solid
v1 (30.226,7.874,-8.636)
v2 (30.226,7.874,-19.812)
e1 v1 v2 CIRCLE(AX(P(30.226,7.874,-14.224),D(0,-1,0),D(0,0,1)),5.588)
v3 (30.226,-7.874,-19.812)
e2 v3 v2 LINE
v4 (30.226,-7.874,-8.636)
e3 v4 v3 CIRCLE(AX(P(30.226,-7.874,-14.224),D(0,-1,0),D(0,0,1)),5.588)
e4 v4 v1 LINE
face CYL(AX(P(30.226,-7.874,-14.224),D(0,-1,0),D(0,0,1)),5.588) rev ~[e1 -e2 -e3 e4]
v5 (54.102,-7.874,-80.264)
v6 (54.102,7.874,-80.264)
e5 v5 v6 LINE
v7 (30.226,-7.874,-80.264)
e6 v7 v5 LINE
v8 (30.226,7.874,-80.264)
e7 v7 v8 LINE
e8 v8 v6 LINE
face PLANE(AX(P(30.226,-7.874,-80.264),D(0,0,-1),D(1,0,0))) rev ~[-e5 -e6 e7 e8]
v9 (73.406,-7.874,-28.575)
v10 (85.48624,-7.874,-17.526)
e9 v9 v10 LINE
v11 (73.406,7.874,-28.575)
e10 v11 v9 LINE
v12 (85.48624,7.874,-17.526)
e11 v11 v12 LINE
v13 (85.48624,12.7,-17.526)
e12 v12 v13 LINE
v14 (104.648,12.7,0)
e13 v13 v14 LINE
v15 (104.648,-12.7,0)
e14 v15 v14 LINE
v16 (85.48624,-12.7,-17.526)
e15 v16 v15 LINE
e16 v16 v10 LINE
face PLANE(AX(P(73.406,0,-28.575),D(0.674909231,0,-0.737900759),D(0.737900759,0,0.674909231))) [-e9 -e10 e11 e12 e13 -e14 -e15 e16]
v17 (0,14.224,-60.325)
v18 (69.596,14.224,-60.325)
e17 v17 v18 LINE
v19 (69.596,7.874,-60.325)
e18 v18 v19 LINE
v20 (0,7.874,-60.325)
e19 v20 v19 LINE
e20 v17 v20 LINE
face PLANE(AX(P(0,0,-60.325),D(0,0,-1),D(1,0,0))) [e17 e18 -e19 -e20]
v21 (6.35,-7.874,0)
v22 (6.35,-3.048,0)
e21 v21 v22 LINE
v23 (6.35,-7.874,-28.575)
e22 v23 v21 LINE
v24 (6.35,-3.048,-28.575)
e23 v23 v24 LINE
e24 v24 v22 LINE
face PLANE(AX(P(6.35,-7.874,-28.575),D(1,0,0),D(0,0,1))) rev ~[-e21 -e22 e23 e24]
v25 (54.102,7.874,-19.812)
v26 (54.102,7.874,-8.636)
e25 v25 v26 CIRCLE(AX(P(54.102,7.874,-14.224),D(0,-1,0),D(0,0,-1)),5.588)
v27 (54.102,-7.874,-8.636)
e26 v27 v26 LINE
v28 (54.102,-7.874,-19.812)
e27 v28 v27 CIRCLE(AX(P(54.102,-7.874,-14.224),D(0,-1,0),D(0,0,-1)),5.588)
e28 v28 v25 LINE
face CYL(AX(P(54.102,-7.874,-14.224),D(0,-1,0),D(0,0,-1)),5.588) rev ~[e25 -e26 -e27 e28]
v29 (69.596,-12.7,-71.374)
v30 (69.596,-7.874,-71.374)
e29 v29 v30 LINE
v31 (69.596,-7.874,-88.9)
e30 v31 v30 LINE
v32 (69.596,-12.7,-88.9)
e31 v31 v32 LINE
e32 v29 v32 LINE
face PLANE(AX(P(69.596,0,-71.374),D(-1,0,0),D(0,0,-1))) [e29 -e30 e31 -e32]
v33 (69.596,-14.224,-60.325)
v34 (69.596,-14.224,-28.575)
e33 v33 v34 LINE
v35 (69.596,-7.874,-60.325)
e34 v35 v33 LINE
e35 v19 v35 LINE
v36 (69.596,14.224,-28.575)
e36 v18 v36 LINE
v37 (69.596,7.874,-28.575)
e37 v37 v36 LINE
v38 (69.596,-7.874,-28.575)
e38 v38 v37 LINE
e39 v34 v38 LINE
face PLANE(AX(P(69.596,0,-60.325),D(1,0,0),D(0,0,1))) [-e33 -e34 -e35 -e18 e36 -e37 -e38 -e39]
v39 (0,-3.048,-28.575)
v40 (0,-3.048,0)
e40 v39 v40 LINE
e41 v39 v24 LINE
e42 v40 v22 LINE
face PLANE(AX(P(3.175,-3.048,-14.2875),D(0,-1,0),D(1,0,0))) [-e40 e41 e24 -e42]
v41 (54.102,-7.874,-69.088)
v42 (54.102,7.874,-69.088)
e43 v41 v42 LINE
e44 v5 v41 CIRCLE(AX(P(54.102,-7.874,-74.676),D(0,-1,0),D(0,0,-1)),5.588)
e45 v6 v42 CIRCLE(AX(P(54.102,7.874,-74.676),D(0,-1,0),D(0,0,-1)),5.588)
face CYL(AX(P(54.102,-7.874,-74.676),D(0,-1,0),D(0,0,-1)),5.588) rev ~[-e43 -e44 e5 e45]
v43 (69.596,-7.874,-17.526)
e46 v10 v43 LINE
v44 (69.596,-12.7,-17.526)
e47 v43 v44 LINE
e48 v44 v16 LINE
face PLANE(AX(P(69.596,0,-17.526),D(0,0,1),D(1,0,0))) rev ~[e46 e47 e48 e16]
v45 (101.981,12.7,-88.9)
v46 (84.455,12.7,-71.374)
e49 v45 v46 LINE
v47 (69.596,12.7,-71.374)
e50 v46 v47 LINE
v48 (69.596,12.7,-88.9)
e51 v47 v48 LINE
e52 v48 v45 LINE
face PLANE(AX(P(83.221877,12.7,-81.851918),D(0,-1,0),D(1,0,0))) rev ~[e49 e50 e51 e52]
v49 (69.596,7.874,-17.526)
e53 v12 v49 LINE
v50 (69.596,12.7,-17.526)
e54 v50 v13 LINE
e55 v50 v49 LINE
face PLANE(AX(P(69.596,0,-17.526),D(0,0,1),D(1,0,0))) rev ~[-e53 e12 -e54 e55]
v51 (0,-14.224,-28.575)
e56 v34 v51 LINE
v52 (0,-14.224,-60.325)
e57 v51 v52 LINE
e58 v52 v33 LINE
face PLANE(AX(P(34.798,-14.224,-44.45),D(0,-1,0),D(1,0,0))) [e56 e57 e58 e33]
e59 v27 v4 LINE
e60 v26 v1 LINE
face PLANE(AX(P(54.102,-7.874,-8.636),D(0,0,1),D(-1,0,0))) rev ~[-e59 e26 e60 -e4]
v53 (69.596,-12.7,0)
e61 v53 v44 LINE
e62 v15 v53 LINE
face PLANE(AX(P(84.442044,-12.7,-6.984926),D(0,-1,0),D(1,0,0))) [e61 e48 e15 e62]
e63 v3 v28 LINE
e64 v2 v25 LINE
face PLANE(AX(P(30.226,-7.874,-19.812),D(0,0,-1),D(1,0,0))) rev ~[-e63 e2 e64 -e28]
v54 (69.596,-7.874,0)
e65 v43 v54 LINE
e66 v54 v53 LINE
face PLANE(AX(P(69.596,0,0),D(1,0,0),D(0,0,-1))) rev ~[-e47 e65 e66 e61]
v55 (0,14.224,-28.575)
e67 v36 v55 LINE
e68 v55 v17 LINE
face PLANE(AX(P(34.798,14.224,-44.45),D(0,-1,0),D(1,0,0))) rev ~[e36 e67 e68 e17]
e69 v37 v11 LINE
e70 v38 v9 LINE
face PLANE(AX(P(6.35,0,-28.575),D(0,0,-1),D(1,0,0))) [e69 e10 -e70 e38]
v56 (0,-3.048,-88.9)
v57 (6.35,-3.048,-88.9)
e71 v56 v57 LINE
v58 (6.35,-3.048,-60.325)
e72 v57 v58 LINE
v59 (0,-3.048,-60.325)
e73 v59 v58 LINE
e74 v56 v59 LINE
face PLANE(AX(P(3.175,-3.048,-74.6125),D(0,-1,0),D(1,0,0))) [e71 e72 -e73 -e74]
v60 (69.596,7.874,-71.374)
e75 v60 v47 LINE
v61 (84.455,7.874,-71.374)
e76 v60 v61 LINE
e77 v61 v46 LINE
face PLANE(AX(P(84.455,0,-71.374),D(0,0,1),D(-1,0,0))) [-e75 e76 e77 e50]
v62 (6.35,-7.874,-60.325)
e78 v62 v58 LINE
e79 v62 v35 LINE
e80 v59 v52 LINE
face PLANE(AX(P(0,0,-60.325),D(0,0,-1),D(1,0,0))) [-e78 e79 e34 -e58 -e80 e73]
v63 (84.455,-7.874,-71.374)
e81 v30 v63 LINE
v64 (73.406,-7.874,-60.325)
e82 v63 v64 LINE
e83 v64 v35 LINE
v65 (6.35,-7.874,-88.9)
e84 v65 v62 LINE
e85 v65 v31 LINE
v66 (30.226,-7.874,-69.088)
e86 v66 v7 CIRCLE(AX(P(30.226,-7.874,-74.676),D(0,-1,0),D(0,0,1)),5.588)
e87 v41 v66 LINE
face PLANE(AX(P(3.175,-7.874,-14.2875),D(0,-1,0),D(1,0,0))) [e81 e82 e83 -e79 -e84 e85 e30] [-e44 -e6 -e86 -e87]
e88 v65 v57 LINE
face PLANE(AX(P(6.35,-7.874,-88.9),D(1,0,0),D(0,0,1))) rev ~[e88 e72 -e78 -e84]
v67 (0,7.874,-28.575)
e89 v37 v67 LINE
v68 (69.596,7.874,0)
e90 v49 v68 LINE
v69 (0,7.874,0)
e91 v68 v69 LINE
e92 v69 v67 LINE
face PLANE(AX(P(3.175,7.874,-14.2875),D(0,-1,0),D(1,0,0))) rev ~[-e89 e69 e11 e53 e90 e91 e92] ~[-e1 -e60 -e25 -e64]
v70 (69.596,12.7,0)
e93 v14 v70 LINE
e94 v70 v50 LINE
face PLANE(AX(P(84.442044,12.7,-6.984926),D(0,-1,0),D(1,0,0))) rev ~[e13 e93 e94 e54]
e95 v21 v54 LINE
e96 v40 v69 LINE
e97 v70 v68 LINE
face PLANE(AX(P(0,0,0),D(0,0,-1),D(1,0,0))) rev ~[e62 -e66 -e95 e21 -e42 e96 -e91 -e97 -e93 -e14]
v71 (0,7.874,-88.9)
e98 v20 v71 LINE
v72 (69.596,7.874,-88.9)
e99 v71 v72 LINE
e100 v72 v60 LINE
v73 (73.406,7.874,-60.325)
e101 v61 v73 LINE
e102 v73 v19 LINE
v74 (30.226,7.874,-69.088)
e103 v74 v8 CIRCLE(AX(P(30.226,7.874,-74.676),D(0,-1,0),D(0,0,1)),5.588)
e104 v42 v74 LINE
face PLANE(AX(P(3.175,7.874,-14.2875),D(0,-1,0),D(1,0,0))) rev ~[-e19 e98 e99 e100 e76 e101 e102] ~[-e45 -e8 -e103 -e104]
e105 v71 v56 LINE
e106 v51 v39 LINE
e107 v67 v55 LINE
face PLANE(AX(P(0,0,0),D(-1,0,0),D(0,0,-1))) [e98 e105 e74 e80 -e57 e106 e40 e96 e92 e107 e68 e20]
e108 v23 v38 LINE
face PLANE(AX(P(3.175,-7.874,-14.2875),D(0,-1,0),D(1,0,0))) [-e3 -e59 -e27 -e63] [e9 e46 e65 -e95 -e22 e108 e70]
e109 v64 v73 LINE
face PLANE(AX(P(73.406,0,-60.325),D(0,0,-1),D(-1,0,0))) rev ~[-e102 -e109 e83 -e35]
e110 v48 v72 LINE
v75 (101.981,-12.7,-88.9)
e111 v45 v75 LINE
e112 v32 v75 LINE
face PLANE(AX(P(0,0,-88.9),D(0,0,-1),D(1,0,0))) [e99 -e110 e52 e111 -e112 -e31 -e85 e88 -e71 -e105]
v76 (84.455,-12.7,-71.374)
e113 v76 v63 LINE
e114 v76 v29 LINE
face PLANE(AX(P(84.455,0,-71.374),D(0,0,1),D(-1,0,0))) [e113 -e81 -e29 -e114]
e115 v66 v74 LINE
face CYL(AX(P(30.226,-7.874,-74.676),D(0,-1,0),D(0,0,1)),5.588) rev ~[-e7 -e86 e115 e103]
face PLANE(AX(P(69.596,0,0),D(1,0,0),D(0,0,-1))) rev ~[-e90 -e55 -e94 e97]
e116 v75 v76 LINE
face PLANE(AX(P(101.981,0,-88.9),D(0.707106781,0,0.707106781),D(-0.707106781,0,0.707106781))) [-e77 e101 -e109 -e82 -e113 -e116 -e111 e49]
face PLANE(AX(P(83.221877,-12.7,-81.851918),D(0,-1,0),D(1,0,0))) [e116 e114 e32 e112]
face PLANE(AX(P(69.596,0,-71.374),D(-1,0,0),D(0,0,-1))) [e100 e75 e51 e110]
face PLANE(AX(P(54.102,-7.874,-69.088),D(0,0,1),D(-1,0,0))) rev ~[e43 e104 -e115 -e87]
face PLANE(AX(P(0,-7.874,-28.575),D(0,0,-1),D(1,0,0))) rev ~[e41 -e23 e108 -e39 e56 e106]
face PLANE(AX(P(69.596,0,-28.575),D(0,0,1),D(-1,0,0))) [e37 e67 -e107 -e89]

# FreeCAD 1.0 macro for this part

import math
import FreeCAD as App
import Part
import Sketcher

V = App.Vector
Q = App.Units.Quantity

doc = App.newDocument("Part")
params = doc.addObject("Spreadsheet::Sheet", "Params")
for row, (alias, value) in enumerate([
    ("sketch1_width", "2.74 in"),
    ("sketch1_height", "1.25 in"),
    ("pad1_length", "1.12 in"),
    ("sketch2_width", "2.49 in"),
    ("sketch2_width2", "2.64 in"),
    ("sketch2_height", "0.69 in"),
    ("sketch2_width3", "0.585 in"),
    ("pad2_length", "0.62 in"),
    ("sketch3_width", "1.38 in"),
    ("sketch3_height", "0.69 in"),
    ("sketch3_width2", "1.275 in"),
    ("pad3_length", "1 in"),
    ("sketch4_height", "3.5 in"),
    ("sketch4_width", "0.25 in"),
    ("sketch4_width2", "2.49 in"),
    ("sketch4_height2", "1.25 in"),
    ("pad4_length", "0.62 in"),
    ("sketch5_width", "0.25 in"),
    ("sketch5_height", "1.125 in"),
    ("pocket1_length", "0.19 in"),
    ("sketch6_radius", "0.22 in"),
    ("sketch6_width", "0.94 in"),
], start=1):
    params.set(f"A{row}", alias)
    params.set(f"B{row}", "=" + value)
    params.setAlias(f"B{row}", alias)

body = doc.addObject("PartDesign::Body", "Body")

sketch1 = body.newObject("Sketcher::SketchObject", "Sketch")
sketch1.AttachmentSupport = (doc.getObject("XZ_Plane"), [""])
sketch1.MapMode = "FlatFace"
sketch1.addGeometry([
    Part.LineSegment(V(0, -29, 0), V(0, -60, 0)),
    Part.LineSegment(V(0, -60, 0), V(70, -60, 0)),
    Part.LineSegment(V(70, -60, 0), V(70, -29, 0)),
    Part.LineSegment(V(70, -29, 0), V(0, -29, 0)),
], False)
sketch1.addConstraint([
    Sketcher.Constraint("Coincident", 0, 2, 1, 1),
    Sketcher.Constraint("Coincident", 1, 2, 2, 1),
    Sketcher.Constraint("Coincident", 2, 2, 3, 1),
    Sketcher.Constraint("Coincident", 3, 2, 0, 1),
    Sketcher.Constraint("Vertical", 0),
    Sketcher.Constraint("Horizontal", 1),
    Sketcher.Constraint("Vertical", 2),
    Sketcher.Constraint("Horizontal", 3),
    Sketcher.Constraint("PointOnObject", 0, 2, -2),
    Sketcher.Constraint("DistanceX", 1, 1, 1, 2, Q("2.74 in")),
    Sketcher.Constraint("DistanceY", 0, 2, 0, 1, Q("1.25 in")),
    Sketcher.Constraint("DistanceY", 0, 2, -1, 1, Q("2.375 in")),
])
sketch1.setExpression("Constraints[9]", "Params.sketch1_width")
sketch1.setExpression("Constraints[10]", "Params.sketch1_height")
pad1 = body.newObject("PartDesign::Pad", "Pad")
pad1.Profile = sketch1
pad1.setExpression("Length", "Params.pad1_length")
pad1.Midplane = True

sketch2 = body.newObject("Sketcher::SketchObject", "Sketch001")
sketch2.AttachmentSupport = (doc.getObject("XZ_Plane"), [""])
sketch2.MapMode = "FlatFace"
sketch2.addGeometry([
    Part.LineSegment(V(6, -60, 0), V(6, -89, 0)),
    Part.LineSegment(V(6, -89, 0), V(70, -89, 0)),
    Part.LineSegment(V(70, -89, 0), V(70, -71, 0)),
    Part.LineSegment(V(70, -71, 0), V(84, -71, 0)),
    Part.LineSegment(V(84, -71, 0), V(73, -60, 0)),
    Part.LineSegment(V(73, -60, 0), V(6, -60, 0)),
    Part.LineSegment(V(70, 0, 0), V(6, 0, 0)),
    Part.LineSegment(V(6, 0, 0), V(6, -29, 0)),
    Part.LineSegment(V(6, -29, 0), V(73, -29, 0)),
    Part.LineSegment(V(73, -29, 0), V(85, -18, 0)),
    Part.LineSegment(V(85, -18, 0), V(70, -18, 0)),
    Part.LineSegment(V(70, -18, 0), V(70, 0, 0)),
], False)
sketch2.addConstraint([
    Sketcher.Constraint("Coincident", 0, 2, 1, 1),
    Sketcher.Constraint("Coincident", 1, 2, 2, 1),
    Sketcher.Constraint("Coincident", 2, 2, 3, 1),
    Sketcher.Constraint("Coincident", 3, 2, 4, 1),
    Sketcher.Constraint("Coincident", 4, 2, 5, 1),
    Sketcher.Constraint("Coincident", 5, 2, 0, 1),
    Sketcher.Constraint("Coincident", 6, 2, 7, 1),
    Sketcher.Constraint("Coincident", 7, 2, 8, 1),
    Sketcher.Constraint("Coincident", 8, 2, 9, 1),
    Sketcher.Constraint("Coincident", 9, 2, 10, 1),
    Sketcher.Constraint("Coincident", 10, 2, 11, 1),
    Sketcher.Constraint("Coincident", 11, 2, 6, 1),
    Sketcher.Constraint("Vertical", 0),
    Sketcher.Constraint("Horizontal", 1),
    Sketcher.Constraint("Vertical", 2),
    Sketcher.Constraint("Horizontal", 3),
    Sketcher.Constraint("Horizontal", 5),
    Sketcher.Constraint("Horizontal", 6),
    Sketcher.Constraint("Vertical", 7),
    Sketcher.Constraint("Horizontal", 8),
    Sketcher.Constraint("Horizontal", 10),
    Sketcher.Constraint("Vertical", 11),
    Sketcher.Constraint("PointOnObject", 6, 2, -1),
    Sketcher.Constraint("Vertical", 5, 2, 6, 2),
    Sketcher.Constraint("Vertical", 4, 2, 8, 2),
    Sketcher.Constraint("Vertical", 2, 2, 10, 2),
    Sketcher.Constraint("Equal", 0, 7),
    Sketcher.Constraint("Equal", 2, 11),
    Sketcher.Constraint("Angle", 4, Q("135 deg")),
    Sketcher.Constraint("DistanceX", 1, 1, 1, 2, Q("2.49 in")),
    Sketcher.Constraint("DistanceX", 5, 2, 5, 1, Q("2.64 in")),
    Sketcher.Constraint("DistanceY", 2, 1, 2, 2, Q("0.69 in")),
    Sketcher.Constraint("DistanceY", 0, 2, -1, 1, Q("3.5 in")),
    Sketcher.Constraint("DistanceX", 3, 1, 3, 2, Q("0.585 in")),
    Sketcher.Constraint("DistanceX", -1, 1, 0, 2, Q("0.25 in")),
    Sketcher.Constraint("DistanceX", 10, 2, 10, 1, Q("0.6256 in")),
])
sketch2.setExpression("Constraints[29]", "Params.sketch2_width")
sketch2.setExpression("Constraints[30]", "Params.sketch2_width2")
sketch2.setExpression("Constraints[31]", "Params.sketch2_height")
sketch2.setExpression("Constraints[33]", "Params.sketch2_width3")
pad2 = body.newObject("PartDesign::Pad", "Pad001")
pad2.Profile = sketch2
pad2.setExpression("Length", "Params.pad2_length")
pad2.Midplane = True

sketch3 = body.newObject("Sketcher::SketchObject", "Sketch002")
sketch3.AttachmentSupport = (doc.getObject("XZ_Plane"), [""])
sketch3.MapMode = "FlatFace"
sketch3.addGeometry([
    Part.LineSegment(V(105, 0, 0), V(70, 0, 0)),
    Part.LineSegment(V(70, 0, 0), V(70, -18, 0)),
    Part.LineSegment(V(70, -18, 0), V(85, -18, 0)),
    Part.LineSegment(V(85, -18, 0), V(105, 0, 0)),
    Part.LineSegment(V(70, -71, 0), V(70, -89, 0)),
    Part.LineSegment(V(70, -89, 0), V(102, -89, 0)),
    Part.LineSegment(V(102, -89, 0), V(84, -71, 0)),
    Part.LineSegment(V(84, -71, 0), V(70, -71, 0)),
], False)
sketch3.addConstraint([
    Sketcher.Constraint("Coincident", 0, 2, 1, 1),
    Sketcher.Constraint("Coincident", 1, 2, 2, 1),
    Sketcher.Constraint("Coincident", 2, 2, 3, 1),
    Sketcher.Constraint("Coincident", 3, 2, 0, 1),
    Sketcher.Constraint("Coincident", 4, 2, 5, 1),
    Sketcher.Constraint("Coincident", 5, 2, 6, 1),
    Sketcher.Constraint("Coincident", 6, 2, 7, 1),
    Sketcher.Constraint("Coincident", 7, 2, 4, 1),
    Sketcher.Constraint("Horizontal", 0),
    Sketcher.Constraint("Vertical", 1),
    Sketcher.Constraint("Horizontal", 2),
    Sketcher.Constraint("Vertical", 4),
    Sketcher.Constraint("Horizontal", 5),
    Sketcher.Constraint("Horizontal", 7),
    Sketcher.Constraint("PointOnObject", 0, 2, -1),
    Sketcher.Constraint("Vertical", 1, 2, 4, 2),
    Sketcher.Constraint("Equal", 1, 4),
    Sketcher.Constraint("Angle", 6, Q("135 deg")),
    Sketcher.Constraint("DistanceX", 0, 2, 0, 1, Q("1.38 in")),
    Sketcher.Constraint("DistanceY", 1, 2, 1, 1, Q("0.69 in")),
    Sketcher.Constraint("DistanceY", 4, 2, -1, 1, Q("3.5 in")),
    Sketcher.Constraint("DistanceX", 5, 1, 5, 2, Q("1.275 in")),
    Sketcher.Constraint("DistanceX", -1, 1, 0, 2, Q("2.74 in")),
    Sketcher.Constraint("DistanceX", 2, 1, 2, 2, Q("0.6256 in")),
])
sketch3.setExpression("Constraints[18]", "Params.sketch3_width")
sketch3.setExpression("Constraints[19]", "Params.sketch3_height")
sketch3.setExpression("Constraints[21]", "Params.sketch3_width2")
pad3 = body.newObject("PartDesign::Pad", "Pad002")
pad3.Profile = sketch3
pad3.setExpression("Length", "Params.pad3_length")
pad3.Midplane = True

sketch4 = body.newObject("Sketcher::SketchObject", "Sketch003")
sketch4.AttachmentSupport = (doc.getObject("XZ_Plane"), [""])
sketch4.MapMode = "FlatFace"
sketch4.addGeometry([
    Part.LineSegment(V(0, 0, 0), V(0, -89, 0)),
    Part.LineSegment(V(0, -89, 0), V(6, -89, 0)),
    Part.LineSegment(V(6, -89, 0), V(6, -60, 0)),
    Part.LineSegment(V(6, -60, 0), V(70, -60, 0)),
    Part.LineSegment(V(70, -60, 0), V(70, -29, 0)),
    Part.LineSegment(V(70, -29, 0), V(6, -29, 0)),
    Part.LineSegment(V(6, -29, 0), V(6, 0, 0)),
    Part.LineSegment(V(6, 0, 0), V(0, 0, 0)),
], False)
sketch4.addConstraint([
    Sketcher.Constraint("Coincident", 0, 2, 1, 1),
    Sketcher.Constraint("Coincident", 1, 2, 2, 1),
    Sketcher.Constraint("Coincident", 2, 2, 3, 1),
    Sketcher.Constraint("Coincident", 3, 2, 4, 1),
    Sketcher.Constraint("Coincident", 4, 2, 5, 1),
    Sketcher.Constraint("Coincident", 5, 2, 6, 1),
    Sketcher.Constraint("Coincident", 6, 2, 7, 1),
    Sketcher.Constraint("Coincident", 7, 2, 0, 1),
    Sketcher.Constraint("Vertical", 0),
    Sketcher.Constraint("Horizontal", 1),
    Sketcher.Constraint("Vertical", 2),
    Sketcher.Constraint("Horizontal", 3),
    Sketcher.Constraint("Vertical", 4),
    Sketcher.Constraint("Horizontal", 5),
    Sketcher.Constraint("Vertical", 6),
    Sketcher.Constraint("Horizontal", 7),
    Sketcher.Constraint("Coincident", 7, 2, -1, 1),
    Sketcher.Constraint("Vertical", 2, 2, 5, 2),
    Sketcher.Constraint("Equal", 2, 6),
    Sketcher.Constraint("DistanceY", 0, 2, 0, 1, Q("3.5 in")),
    Sketcher.Constraint("DistanceX", 1, 1, 1, 2, Q("0.25 in")),
    Sketcher.Constraint("DistanceX", 3, 1, 3, 2, Q("2.49 in")),
    Sketcher.Constraint("DistanceY", 4, 1, 4, 2, Q("1.25 in")),
])
sketch4.setExpression("Constraints[19]", "Params.sketch4_height")
sketch4.setExpression("Constraints[20]", "Params.sketch4_width")
sketch4.setExpression("Constraints[21]", "Params.sketch4_width2")
sketch4.setExpression("Constraints[22]", "Params.sketch4_height2")
pad4 = body.newObject("PartDesign::Pad", "Pad003")
pad4.Profile = sketch4
pad4.setExpression("Length", "Params.pad4_length")
pad4.Midplane = True

sketch5 = body.newObject("Sketcher::SketchObject", "Sketch004")
sketch5.AttachmentSupport = (doc.getObject("XZ_Plane"), [""])
sketch5.MapMode = "FlatFace"
sketch5.AttachmentOffset = App.Placement(V(0, 0, 0.31 * 25.4), App.Rotation())
sketch5.addGeometry([
    Part.LineSegment(V(0, 0, 0), V(0, -29, 0)),
    Part.LineSegment(V(0, -29, 0), V(6, -29, 0)),
    Part.LineSegment(V(6, -29, 0), V(6, 0, 0)),
    Part.LineSegment(V(6, 0, 0), V(0, 0, 0)),
    Part.LineSegment(V(0, -60, 0), V(0, -89, 0)),
    Part.LineSegment(V(0, -89, 0), V(6, -89, 0)),
    Part.LineSegment(V(6, -89, 0), V(6, -60, 0)),
    Part.LineSegment(V(6, -60, 0), V(0, -60, 0)),
], False)
sketch5.addConstraint([
    Sketcher.Constraint("Coincident", 0, 2, 1, 1),
    Sketcher.Constraint("Coincident", 1, 2, 2, 1),
    Sketcher.Constraint("Coincident", 2, 2, 3, 1),
    Sketcher.Constraint("Coincident", 3, 2, 0, 1),
    Sketcher.Constraint("Coincident", 4, 2, 5, 1),
    Sketcher.Constraint("Coincident", 5, 2, 6, 1),
    Sketcher.Constraint("Coincident", 6, 2, 7, 1),
    Sketcher.Constraint("Coincident", 7, 2, 4, 1),
    Sketcher.Constraint("Vertical", 0),
    Sketcher.Constraint("Horizontal", 1),
    Sketcher.Constraint("Vertical", 2),
    Sketcher.Constraint("Horizontal", 3),
    Sketcher.Constraint("Vertical", 4),
    Sketcher.Constraint("Horizontal", 5),
    Sketcher.Constraint("Vertical", 6),
    Sketcher.Constraint("Horizontal", 7),
    Sketcher.Constraint("Coincident", 3, 2, -1, 1),
    Sketcher.Constraint("PointOnObject", 4, 2, -2),
    Sketcher.Constraint("Vertical", 2, 2, 5, 2),
    Sketcher.Constraint("Equal", 2, 4),
    Sketcher.Constraint("DistanceX", 1, 1, 1, 2, Q("0.25 in")),
    Sketcher.Constraint("DistanceY", 4, 2, -1, 1, Q("3.5 in")),
    Sketcher.Constraint("DistanceY", 0, 2, 0, 1, Q("1.125 in")),
])
sketch5.setExpression("Constraints[20]", "Params.sketch5_width")
sketch5.setExpression("Constraints[22]", "Params.sketch5_height")
pocket1 = body.newObject("PartDesign::Pocket", "Pocket")
pocket1.Profile = sketch5
pocket1.setExpression("Length", "Params.pocket1_length")

sketch6 = body.newObject("Sketcher::SketchObject", "Sketch005")
sketch6.AttachmentSupport = (doc.getObject("XZ_Plane"), [""])
sketch6.MapMode = "FlatFace"
sketch6.AttachmentOffset = App.Placement(V(0, 0, 0.31 * 25.4), App.Rotation())
sketch6.addGeometry([
    Part.LineSegment(V(54, -9, 0), V(30, -9, 0)),
    Part.ArcOfCircle(Part.Circle(V(30, -14, 0), V(0, 0, 1), 6), math.radians(90), math.radians(270)),
    Part.LineSegment(V(30, -20, 0), V(54, -20, 0)),
    Part.ArcOfCircle(Part.Circle(V(54, -14, 0), V(0, 0, 1), 6), math.radians(-90), math.radians(90)),
    Part.ArcOfCircle(Part.Circle(V(30, -75, 0), V(0, 0, 1), 6), math.radians(90), math.radians(270)),
    Part.LineSegment(V(30, -80, 0), V(54, -80, 0)),
    Part.ArcOfCircle(Part.Circle(V(54, -75, 0), V(0, 0, 1), 6), math.radians(-90), math.radians(90)),
    Part.LineSegment(V(54, -69, 0), V(30, -69, 0)),
], False)
sketch6.addConstraint([
    Sketcher.Constraint("Tangent", 0, 2, 1, 1),
    Sketcher.Constraint("Tangent", 1, 2, 2, 1),
    Sketcher.Constraint("Tangent", 2, 2, 3, 1),
    Sketcher.Constraint("Tangent", 3, 2, 0, 1),
    Sketcher.Constraint("Tangent", 4, 2, 5, 1),
    Sketcher.Constraint("Tangent", 5, 2, 6, 1),
    Sketcher.Constraint("Tangent", 6, 2, 7, 1),
    Sketcher.Constraint("Tangent", 7, 2, 4, 1),
    Sketcher.Constraint("Horizontal", 0),
    Sketcher.Constraint("Horizontal", 2),
    Sketcher.Constraint("Horizontal", 5),
    Sketcher.Constraint("Horizontal", 7),
    Sketcher.Constraint("Equal", 3, 4),
    Sketcher.Constraint("Vertical", 1, 3, 4, 3),
    Sketcher.Constraint("Vertical", 3, 3, 6, 3),
    Sketcher.Constraint("Radius", 1, Q("0.22 in")),
    Sketcher.Constraint("DistanceX", 0, 2, 0, 1, Q("0.94 in")),
    Sketcher.Constraint("DistanceY", 4, 3, 0, 2, Q("2.6 in")),
    Sketcher.Constraint("DistanceX", -1, 1, 1, 3, Q("1.19 in")),
    Sketcher.Constraint("DistanceY", 1, 3, -1, 1, Q("0.56 in")),
])
sketch6.setExpression("Constraints[15]", "Params.sketch6_radius")
sketch6.setExpression("Constraints[16]", "Params.sketch6_width")
pocket2 = body.newObject("PartDesign::Pocket", "Pocket001")
pocket2.Profile = sketch6
pocket2.Type = "ThroughAll"

doc.recompute()
